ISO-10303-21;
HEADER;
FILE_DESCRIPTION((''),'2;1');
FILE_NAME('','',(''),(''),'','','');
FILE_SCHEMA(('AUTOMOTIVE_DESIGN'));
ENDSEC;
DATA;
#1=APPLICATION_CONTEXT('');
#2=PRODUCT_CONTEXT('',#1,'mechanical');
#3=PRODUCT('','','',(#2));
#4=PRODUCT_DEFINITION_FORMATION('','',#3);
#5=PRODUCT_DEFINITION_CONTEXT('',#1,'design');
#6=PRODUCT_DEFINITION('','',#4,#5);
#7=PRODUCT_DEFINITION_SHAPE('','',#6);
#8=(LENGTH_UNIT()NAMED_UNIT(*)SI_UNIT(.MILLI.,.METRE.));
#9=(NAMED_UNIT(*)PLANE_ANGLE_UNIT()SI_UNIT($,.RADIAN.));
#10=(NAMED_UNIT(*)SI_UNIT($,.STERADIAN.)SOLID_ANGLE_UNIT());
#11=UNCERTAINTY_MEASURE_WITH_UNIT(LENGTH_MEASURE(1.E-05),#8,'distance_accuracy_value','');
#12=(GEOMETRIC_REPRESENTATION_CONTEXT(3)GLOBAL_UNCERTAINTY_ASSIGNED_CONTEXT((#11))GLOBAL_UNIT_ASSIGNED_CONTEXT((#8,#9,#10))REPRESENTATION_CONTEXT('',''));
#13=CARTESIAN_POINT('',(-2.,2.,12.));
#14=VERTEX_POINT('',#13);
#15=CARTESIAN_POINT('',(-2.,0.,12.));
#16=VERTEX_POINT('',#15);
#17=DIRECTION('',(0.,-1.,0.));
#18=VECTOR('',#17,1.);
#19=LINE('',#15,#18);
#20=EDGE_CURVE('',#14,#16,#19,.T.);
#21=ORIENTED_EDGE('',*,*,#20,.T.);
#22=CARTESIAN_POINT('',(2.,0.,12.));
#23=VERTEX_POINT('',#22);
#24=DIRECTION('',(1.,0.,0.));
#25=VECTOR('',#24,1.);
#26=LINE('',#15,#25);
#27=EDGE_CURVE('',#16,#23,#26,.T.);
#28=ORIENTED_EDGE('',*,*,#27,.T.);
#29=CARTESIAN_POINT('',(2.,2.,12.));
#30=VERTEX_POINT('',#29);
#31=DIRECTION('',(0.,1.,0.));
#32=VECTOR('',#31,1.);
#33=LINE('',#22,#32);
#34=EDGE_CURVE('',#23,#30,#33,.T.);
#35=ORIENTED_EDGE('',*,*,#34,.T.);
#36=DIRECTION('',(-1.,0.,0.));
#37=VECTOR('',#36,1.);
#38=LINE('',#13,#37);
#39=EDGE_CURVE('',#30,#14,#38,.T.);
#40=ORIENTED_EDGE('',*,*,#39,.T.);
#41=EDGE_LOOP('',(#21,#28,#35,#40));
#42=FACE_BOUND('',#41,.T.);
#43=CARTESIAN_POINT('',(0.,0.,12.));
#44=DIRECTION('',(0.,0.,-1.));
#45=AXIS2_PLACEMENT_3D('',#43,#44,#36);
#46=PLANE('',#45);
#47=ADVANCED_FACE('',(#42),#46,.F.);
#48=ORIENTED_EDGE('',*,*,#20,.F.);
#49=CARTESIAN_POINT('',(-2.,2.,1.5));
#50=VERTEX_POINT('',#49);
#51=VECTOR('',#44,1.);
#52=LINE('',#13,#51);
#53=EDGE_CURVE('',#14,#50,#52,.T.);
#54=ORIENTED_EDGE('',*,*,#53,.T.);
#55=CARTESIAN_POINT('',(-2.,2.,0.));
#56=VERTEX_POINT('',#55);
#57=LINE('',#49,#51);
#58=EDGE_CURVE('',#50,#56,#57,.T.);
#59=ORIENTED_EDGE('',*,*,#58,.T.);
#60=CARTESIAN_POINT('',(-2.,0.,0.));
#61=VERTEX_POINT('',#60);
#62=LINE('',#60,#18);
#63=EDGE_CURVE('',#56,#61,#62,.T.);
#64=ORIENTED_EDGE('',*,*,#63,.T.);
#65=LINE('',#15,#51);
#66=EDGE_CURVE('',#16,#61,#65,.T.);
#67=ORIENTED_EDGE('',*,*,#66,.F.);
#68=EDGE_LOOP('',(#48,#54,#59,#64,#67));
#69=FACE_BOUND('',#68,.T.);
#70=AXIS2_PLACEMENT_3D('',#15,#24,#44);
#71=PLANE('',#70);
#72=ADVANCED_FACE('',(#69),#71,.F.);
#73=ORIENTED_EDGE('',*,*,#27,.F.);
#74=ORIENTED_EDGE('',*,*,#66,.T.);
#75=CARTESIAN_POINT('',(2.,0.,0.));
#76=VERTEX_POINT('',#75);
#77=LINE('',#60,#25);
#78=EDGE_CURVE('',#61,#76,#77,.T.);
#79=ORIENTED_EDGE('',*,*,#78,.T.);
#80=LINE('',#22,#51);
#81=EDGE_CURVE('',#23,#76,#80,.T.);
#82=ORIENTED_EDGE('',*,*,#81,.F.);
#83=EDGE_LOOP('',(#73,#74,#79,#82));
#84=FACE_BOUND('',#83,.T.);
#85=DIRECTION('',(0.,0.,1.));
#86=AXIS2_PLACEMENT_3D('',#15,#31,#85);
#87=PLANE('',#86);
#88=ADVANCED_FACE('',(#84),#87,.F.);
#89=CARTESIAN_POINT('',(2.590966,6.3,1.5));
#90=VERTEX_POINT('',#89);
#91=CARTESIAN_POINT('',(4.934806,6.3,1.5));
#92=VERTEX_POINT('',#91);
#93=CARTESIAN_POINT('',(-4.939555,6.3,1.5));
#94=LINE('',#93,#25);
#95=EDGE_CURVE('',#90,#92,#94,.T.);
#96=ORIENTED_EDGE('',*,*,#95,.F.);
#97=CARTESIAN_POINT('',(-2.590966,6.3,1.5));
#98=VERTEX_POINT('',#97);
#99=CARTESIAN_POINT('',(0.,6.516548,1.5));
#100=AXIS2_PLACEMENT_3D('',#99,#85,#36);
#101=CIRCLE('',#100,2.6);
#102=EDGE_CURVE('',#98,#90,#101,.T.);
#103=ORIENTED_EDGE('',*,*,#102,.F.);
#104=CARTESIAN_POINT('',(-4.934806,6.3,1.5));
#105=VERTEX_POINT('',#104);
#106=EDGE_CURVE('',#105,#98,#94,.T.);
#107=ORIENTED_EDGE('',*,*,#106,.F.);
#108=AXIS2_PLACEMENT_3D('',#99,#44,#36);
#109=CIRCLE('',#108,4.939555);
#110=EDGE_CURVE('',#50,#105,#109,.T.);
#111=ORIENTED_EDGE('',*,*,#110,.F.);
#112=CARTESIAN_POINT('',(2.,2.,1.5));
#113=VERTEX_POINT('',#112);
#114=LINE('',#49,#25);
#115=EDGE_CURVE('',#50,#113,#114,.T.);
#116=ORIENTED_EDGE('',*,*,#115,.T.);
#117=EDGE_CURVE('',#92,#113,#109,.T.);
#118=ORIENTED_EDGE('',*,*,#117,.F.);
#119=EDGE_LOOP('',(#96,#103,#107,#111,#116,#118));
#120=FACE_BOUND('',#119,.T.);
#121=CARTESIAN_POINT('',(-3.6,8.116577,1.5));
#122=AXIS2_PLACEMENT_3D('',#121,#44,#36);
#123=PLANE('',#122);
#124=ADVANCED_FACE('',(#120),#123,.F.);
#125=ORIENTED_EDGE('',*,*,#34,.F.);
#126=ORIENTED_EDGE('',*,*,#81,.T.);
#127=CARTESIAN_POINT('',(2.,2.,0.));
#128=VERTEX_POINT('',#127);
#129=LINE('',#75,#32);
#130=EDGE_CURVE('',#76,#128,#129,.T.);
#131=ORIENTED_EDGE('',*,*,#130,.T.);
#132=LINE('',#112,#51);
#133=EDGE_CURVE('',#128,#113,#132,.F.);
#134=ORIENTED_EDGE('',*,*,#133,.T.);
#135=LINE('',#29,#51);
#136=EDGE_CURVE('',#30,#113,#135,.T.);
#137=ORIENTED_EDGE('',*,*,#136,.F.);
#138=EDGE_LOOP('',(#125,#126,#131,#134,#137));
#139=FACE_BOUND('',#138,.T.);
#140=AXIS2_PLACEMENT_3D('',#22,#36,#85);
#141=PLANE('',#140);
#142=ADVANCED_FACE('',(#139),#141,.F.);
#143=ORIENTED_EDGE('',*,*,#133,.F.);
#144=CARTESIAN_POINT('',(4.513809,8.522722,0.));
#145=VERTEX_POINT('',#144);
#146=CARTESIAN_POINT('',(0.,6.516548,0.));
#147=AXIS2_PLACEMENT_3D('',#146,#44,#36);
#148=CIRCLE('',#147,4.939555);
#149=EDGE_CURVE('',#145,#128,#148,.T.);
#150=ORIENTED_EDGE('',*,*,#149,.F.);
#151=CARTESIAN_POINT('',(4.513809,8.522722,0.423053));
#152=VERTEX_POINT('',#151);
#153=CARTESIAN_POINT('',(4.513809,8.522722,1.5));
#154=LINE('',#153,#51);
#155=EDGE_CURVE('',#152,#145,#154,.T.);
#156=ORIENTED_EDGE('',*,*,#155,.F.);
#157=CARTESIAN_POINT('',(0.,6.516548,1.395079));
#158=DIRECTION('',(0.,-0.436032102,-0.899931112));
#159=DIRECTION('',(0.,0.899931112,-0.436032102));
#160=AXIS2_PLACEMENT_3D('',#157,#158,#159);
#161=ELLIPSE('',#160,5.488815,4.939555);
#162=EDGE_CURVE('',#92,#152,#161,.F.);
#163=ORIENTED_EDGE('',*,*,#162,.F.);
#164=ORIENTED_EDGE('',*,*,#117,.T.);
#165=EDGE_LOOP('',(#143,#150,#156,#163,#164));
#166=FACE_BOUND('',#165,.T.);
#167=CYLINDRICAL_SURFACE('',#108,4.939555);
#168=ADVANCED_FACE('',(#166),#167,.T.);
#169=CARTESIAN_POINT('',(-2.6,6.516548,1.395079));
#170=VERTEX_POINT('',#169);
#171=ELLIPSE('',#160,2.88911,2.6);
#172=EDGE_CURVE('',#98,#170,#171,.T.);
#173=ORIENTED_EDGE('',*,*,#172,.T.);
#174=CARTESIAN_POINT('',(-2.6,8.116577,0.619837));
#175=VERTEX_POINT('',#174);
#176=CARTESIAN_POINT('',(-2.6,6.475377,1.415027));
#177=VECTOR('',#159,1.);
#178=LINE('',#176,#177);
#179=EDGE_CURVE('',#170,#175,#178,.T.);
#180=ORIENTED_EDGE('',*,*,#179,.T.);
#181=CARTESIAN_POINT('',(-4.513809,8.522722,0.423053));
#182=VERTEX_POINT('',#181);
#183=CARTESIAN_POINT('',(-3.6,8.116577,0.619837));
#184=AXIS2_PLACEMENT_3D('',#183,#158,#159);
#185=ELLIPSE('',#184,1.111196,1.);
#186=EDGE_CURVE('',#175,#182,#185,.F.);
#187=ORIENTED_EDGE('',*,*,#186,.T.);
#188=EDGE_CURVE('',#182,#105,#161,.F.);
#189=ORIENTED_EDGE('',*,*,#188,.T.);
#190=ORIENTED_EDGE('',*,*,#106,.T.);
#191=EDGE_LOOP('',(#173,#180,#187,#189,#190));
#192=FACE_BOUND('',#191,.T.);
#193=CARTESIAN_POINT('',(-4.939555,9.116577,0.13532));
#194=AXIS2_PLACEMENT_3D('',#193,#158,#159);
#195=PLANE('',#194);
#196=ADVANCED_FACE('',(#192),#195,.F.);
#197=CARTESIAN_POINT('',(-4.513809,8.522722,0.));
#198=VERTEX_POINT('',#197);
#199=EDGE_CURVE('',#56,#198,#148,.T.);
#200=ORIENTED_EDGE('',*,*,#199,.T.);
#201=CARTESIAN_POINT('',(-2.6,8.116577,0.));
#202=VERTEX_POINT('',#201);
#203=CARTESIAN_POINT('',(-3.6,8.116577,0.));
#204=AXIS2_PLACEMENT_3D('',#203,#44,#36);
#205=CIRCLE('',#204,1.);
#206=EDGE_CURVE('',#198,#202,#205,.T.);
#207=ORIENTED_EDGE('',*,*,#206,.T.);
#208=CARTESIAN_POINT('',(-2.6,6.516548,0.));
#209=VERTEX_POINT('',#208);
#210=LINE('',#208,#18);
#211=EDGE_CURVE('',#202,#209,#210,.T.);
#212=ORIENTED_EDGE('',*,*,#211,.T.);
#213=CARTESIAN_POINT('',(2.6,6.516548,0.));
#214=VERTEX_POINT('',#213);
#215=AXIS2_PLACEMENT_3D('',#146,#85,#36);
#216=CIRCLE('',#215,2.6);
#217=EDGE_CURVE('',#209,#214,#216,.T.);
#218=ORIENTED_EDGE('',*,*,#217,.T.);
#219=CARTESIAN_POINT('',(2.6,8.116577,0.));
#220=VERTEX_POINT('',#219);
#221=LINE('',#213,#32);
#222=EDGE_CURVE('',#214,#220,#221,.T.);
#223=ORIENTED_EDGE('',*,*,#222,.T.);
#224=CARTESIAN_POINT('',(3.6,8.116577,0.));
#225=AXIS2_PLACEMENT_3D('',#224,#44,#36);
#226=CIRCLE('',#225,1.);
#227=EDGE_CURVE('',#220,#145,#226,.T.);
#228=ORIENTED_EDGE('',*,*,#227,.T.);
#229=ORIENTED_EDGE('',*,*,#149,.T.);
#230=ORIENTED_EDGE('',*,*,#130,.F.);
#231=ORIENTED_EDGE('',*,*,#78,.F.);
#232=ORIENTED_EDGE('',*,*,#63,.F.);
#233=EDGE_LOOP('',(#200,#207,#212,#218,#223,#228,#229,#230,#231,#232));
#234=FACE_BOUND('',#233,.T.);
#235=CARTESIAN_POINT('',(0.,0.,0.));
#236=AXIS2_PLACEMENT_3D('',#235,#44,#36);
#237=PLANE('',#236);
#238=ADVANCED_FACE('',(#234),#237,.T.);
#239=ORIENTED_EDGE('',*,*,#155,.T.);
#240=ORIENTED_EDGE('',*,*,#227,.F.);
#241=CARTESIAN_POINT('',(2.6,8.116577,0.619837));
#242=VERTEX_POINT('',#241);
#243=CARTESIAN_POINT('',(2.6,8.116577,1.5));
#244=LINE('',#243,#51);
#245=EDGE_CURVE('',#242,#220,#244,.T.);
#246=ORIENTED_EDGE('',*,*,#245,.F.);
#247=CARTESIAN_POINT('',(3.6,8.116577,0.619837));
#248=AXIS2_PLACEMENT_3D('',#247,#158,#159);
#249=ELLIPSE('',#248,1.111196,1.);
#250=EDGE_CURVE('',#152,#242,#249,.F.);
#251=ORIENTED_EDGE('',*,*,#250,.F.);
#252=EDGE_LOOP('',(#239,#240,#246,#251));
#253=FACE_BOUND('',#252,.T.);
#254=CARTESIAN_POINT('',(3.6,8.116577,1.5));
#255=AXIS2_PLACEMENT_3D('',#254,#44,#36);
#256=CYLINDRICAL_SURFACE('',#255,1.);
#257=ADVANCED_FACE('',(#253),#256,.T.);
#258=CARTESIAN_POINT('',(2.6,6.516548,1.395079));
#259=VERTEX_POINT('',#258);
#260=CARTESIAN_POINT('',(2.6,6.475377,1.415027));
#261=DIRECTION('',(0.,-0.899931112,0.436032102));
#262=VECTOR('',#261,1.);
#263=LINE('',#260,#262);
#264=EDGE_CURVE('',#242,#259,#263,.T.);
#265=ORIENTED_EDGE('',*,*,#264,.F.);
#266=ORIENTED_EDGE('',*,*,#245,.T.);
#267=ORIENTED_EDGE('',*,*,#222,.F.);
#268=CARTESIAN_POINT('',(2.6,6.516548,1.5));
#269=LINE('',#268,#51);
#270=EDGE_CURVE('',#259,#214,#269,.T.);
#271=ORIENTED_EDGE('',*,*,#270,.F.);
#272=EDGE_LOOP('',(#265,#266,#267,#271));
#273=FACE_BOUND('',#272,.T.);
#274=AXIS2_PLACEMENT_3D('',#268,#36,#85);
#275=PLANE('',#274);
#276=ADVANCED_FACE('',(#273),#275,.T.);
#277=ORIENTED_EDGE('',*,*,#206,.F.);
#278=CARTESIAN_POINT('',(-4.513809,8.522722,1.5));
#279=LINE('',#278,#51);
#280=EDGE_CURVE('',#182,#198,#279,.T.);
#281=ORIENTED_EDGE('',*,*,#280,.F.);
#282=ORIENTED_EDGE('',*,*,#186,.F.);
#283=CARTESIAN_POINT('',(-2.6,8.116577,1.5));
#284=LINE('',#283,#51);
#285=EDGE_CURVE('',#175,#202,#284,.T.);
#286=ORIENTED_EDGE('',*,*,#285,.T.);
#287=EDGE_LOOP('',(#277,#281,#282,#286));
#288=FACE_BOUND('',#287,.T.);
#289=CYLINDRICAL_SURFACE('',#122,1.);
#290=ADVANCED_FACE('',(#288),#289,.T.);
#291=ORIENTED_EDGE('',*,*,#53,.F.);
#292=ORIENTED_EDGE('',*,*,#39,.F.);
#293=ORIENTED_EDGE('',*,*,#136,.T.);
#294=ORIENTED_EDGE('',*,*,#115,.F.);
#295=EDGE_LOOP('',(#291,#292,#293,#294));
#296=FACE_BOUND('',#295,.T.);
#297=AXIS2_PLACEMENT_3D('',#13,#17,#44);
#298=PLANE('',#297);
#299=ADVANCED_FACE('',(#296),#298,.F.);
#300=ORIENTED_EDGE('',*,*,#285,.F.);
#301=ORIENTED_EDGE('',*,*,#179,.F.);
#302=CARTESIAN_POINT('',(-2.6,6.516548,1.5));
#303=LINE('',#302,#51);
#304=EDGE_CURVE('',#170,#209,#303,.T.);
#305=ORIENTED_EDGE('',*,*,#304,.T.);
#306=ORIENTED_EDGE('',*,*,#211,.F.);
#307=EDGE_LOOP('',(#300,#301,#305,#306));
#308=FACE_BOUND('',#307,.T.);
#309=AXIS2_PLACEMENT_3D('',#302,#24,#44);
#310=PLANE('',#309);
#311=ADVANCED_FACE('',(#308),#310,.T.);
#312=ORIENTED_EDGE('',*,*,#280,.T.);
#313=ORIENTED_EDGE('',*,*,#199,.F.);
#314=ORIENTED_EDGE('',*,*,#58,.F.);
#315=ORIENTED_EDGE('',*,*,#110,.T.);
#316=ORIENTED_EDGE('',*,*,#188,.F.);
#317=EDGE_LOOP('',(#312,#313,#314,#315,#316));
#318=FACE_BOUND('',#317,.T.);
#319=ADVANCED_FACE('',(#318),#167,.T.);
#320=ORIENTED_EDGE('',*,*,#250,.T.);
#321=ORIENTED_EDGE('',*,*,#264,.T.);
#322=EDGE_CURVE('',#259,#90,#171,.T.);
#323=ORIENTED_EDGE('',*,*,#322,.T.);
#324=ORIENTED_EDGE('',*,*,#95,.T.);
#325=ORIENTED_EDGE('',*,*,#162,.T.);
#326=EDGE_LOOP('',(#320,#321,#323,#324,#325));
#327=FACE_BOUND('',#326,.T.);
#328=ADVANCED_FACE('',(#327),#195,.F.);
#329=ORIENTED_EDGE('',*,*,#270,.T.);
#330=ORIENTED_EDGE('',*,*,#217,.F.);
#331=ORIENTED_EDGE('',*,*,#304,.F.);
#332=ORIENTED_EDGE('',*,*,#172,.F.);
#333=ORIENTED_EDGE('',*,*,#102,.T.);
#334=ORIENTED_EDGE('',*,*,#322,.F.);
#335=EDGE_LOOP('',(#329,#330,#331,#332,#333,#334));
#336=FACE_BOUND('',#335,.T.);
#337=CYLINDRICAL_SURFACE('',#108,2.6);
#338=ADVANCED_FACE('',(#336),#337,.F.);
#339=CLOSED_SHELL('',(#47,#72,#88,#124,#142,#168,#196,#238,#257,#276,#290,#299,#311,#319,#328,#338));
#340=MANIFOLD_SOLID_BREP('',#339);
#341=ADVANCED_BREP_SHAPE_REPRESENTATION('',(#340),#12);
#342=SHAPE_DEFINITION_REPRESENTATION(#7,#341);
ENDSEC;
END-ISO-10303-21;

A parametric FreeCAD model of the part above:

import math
import FreeCAD as App
import Part
import Sketcher
from FreeCAD import Vector


def add_polygon(sketch, points):
    """Adds a closed chain of lines whose ends are joined by coincident constraints."""
    first, n = sketch.GeometryCount, len(points)
    for a, b in zip(points, points[1:] + points[:1]):
        sketch.addGeometry(Part.LineSegment(App.Vector(*a, 0), App.Vector(*b, 0)), False)
    for i in range(n):
        sketch.addConstraint(Sketcher.Constraint("Coincident", first + i, 2, first + (i + 1) % n, 1))

doc = App.newDocument("Part")
body = doc.addObject("PartDesign::Body", "Body")

sketch1 = body.newObject("Sketcher::SketchObject", "Sketch")
sketch1.AttachmentSupport = (doc.getObject("XY_Plane"), [""])
sketch1.MapMode = "FlatFace"
add_polygon(sketch1, [(-2, 2), (-2, 0), (2, 0), (2, 2)])
sketch1.addConstraint([
    Sketcher.Constraint("Vertical", 0),
    Sketcher.Constraint("Horizontal", 1),
    Sketcher.Constraint("Vertical", 2),
    Sketcher.Constraint("Horizontal", 3),
    Sketcher.Constraint("Symmetric", 0, 2, 1, 2, -1, 1),
    Sketcher.Constraint("DistanceX", 1, 1, 1, 2, 4.0),
    Sketcher.Constraint("DistanceY", 0, 2, 0, 1, 2.0),
])
pad1 = body.newObject("PartDesign::Pad", "Pad")
pad1.Profile = sketch1
pad1.Length = 12

sketch2 = body.newObject("Sketcher::SketchObject", "Sketch001")
sketch2.AttachmentSupport = (doc.getObject("XY_Plane"), [""])
sketch2.MapMode = "FlatFace"
sketch2.addGeometry([
    Part.LineSegment(Vector(2.6, 6.516548, 0), Vector(2.6, 8.116577, 0)),
    Part.ArcOfCircle(Part.Circle(Vector(3.6, 8.116577, 0), Vector(0, 0, 1), 1), math.radians(23.962878), math.radians(180)),
    Part.ArcOfCircle(Part.Circle(Vector(0, 6.516548, 0), Vector(0, 0, 1), 4.939555), math.radians(156.037122), math.radians(383.962878)),
    Part.ArcOfCircle(Part.Circle(Vector(-3.6, 8.116577, 0), Vector(0, 0, 1), 1), math.radians(0), math.radians(156.037122)),
    Part.LineSegment(Vector(-2.6, 8.116577, 0), Vector(-2.6, 6.516548, 0)),
    Part.ArcOfCircle(Part.Circle(Vector(0, 6.516548, 0), Vector(0, 0, 1), 2.6), math.radians(180), math.radians(360)),
], False)
sketch2.addConstraint([
    Sketcher.Constraint("Tangent", 0, 2, 1, 2),
    Sketcher.Constraint("Tangent", 1, 1, 2, 2),
    Sketcher.Constraint("Tangent", 2, 1, 3, 2),
    Sketcher.Constraint("Tangent", 3, 1, 4, 1),
    Sketcher.Constraint("Tangent", 4, 2, 5, 1),
    Sketcher.Constraint("Tangent", 5, 2, 0, 1),
    Sketcher.Constraint("Vertical", 0),
    Sketcher.Constraint("Vertical", 4),
    Sketcher.Constraint("Coincident", 5, 3, 2, 3),
    Sketcher.Constraint("Equal", 1, 3),
    Sketcher.Constraint("PointOnObject", 2, 3, -2),
    Sketcher.Constraint("Radius", 1, 1.0),
    Sketcher.Constraint("Radius", 5, 2.6),
    Sketcher.Constraint("Radius", 2, 4.939555),
    Sketcher.Constraint("DistanceY", -1, 1, 1, 1, 8.522722),
])
pad2 = body.newObject("PartDesign::Pad", "Pad001")
pad2.Profile = sketch2
pad2.Length = 1.5

sketch3 = body.newObject("Sketcher::SketchObject", "Sketch002")
sketch3.AttachmentSupport = (doc.getObject("YZ_Plane"), [""])
sketch3.MapMode = "FlatFace"
add_polygon(sketch3, [(6.3, 1.5), (9.116577, 0.13532), (9.116577, 1.5)])
sketch3.addConstraint([
    Sketcher.Constraint("Vertical", 1),
    Sketcher.Constraint("Horizontal", 2),
    Sketcher.Constraint("DistanceY", -1, 1, 1, 2, 1.5),
    Sketcher.Constraint("DistanceX", -1, 1, 2, 2, 6.3),
    Sketcher.Constraint("DistanceY", 1, 1, 1, 2, 1.36468),
    Sketcher.Constraint("Distance", 0, 3.12977),
])
pocket1 = body.newObject("PartDesign::Pocket", "Pocket")
pocket1.Profile = sketch3
pocket1.Type = "ThroughAll"
pocket1.Midplane = True

doc.recompute()
